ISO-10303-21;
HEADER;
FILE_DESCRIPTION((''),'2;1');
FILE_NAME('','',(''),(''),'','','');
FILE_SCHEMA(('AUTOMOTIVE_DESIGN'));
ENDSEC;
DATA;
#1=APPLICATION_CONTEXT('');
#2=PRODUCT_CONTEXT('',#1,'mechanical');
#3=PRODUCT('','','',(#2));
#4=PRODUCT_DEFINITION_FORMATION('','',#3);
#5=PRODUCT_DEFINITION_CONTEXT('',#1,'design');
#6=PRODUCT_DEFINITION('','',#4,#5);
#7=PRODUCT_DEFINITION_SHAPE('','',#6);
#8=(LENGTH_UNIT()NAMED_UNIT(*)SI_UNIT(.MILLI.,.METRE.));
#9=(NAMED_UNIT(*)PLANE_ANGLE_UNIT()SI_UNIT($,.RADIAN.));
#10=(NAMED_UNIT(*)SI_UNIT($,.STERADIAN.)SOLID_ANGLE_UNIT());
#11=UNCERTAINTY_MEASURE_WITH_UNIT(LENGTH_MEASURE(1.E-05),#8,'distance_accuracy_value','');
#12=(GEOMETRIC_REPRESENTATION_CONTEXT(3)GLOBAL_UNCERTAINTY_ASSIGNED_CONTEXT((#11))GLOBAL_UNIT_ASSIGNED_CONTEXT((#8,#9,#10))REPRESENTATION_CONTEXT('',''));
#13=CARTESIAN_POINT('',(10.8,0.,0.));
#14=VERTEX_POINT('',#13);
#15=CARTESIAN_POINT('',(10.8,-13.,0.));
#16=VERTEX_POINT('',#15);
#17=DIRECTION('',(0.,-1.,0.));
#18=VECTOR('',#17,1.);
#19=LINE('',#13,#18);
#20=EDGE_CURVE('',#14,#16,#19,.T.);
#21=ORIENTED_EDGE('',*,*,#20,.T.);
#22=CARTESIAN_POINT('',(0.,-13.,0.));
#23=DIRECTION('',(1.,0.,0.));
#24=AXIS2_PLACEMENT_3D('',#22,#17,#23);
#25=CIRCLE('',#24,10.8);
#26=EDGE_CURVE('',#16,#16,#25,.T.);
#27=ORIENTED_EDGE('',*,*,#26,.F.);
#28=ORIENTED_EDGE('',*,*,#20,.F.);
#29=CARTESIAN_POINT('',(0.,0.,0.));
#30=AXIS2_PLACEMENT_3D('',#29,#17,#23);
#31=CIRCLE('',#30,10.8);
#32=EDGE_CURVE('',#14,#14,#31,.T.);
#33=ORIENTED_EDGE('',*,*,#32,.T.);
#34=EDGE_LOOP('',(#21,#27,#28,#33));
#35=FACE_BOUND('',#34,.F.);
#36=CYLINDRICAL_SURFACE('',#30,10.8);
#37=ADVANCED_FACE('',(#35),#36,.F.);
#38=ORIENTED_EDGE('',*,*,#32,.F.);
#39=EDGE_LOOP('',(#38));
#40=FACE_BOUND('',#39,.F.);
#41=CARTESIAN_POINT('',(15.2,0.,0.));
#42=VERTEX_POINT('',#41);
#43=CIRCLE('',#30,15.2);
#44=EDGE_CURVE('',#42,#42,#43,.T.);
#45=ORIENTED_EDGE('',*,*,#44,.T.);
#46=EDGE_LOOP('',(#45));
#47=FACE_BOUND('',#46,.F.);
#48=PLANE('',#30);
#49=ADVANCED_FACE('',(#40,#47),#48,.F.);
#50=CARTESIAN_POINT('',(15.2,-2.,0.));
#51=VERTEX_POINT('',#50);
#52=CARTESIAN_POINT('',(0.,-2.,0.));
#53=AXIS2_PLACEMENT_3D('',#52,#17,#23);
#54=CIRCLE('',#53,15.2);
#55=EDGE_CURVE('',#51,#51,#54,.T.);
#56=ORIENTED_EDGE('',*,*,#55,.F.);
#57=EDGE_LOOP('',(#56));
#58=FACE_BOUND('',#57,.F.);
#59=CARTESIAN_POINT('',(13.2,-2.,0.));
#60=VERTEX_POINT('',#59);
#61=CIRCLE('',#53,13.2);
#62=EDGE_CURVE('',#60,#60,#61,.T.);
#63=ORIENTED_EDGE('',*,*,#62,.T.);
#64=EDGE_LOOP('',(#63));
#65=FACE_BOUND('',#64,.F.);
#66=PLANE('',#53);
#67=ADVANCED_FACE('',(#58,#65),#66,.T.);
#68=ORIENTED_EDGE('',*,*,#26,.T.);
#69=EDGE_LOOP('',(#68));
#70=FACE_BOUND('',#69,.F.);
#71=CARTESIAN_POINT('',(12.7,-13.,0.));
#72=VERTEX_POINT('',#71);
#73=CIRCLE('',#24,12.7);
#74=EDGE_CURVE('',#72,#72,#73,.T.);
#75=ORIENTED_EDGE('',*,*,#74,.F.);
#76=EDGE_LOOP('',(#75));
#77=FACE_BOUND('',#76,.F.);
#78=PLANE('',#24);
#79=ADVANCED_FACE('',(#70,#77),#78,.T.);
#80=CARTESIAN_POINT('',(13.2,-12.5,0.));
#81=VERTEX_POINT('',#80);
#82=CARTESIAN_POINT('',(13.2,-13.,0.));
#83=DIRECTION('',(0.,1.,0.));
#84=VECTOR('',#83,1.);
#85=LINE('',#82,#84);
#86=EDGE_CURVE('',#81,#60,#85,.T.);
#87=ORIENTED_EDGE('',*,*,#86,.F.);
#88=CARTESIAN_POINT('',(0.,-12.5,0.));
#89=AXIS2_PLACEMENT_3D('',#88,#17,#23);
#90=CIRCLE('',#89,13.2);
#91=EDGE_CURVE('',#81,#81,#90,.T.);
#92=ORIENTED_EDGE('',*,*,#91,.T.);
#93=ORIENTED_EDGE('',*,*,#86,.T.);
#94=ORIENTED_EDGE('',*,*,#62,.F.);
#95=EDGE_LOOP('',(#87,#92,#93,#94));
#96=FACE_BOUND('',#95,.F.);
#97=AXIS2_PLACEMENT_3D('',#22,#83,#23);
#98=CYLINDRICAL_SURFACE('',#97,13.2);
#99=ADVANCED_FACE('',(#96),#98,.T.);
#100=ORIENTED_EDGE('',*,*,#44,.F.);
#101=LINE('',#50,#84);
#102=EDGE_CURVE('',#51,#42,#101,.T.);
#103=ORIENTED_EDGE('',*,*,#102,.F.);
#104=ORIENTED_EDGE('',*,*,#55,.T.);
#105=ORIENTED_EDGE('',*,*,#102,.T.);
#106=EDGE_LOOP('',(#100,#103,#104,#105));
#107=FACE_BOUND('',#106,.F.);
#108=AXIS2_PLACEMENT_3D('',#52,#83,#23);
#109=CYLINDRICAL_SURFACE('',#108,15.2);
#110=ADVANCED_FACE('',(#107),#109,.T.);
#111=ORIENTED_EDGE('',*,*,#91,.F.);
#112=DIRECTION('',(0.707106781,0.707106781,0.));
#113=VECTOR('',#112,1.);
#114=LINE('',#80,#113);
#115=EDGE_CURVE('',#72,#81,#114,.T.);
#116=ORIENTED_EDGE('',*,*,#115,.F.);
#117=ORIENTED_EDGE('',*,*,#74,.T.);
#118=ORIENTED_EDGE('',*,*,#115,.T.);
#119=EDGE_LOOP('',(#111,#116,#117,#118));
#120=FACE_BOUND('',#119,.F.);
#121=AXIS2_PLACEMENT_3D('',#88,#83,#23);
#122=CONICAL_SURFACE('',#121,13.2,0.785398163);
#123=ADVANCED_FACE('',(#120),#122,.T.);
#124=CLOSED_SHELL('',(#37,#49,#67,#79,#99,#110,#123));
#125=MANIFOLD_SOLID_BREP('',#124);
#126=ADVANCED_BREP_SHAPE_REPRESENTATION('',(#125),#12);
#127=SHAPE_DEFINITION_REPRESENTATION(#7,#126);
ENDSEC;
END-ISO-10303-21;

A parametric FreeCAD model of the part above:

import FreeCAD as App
import Part
import Sketcher
from FreeCAD import Vector
Q = App.Units.Quantity


def edges_at(feature, points):
    """Names of the edges that pass closest to the given points."""
    edges = feature.Shape.Edges
    near = lambda p: min(range(len(edges)), key=lambda i: edges[i].distToShape(Part.Vertex(*p))[0])
    return sorted({f"Edge{near(p) + 1}" for p in points})

doc = App.newDocument("Part")
body = doc.addObject("PartDesign::Body", "Body")

sketch1 = body.newObject("Sketcher::SketchObject", "Sketch")
sketch1.AttachmentSupport = (doc.getObject("XY_Plane"), [""])
sketch1.MapMode = "FlatFace"
sketch1.addGeometry(Part.LineSegment(Vector(15.2, 0, 0), Vector(10.8, 0, 0)), False)
sketch1.addGeometry(Part.LineSegment(Vector(10.8, 0, 0), Vector(10.8, -13, 0)), False)
sketch1.addGeometry(Part.LineSegment(Vector(10.8, -13, 0), Vector(13.2, -13, 0)), False)
sketch1.addGeometry(Part.LineSegment(Vector(13.2, -13, 0), Vector(13.2, -2, 0)), False)
sketch1.addGeometry(Part.LineSegment(Vector(13.2, -2, 0), Vector(15.2, -2, 0)), False)
sketch1.addGeometry(Part.LineSegment(Vector(15.2, -2, 0), Vector(15.2, 0, 0)), False)
sketch1.addConstraint(Sketcher.Constraint("Coincident", 0, 2, 1, 1))
sketch1.addConstraint(Sketcher.Constraint("Coincident", 1, 2, 2, 1))
sketch1.addConstraint(Sketcher.Constraint("Coincident", 2, 2, 3, 1))
sketch1.addConstraint(Sketcher.Constraint("Coincident", 3, 2, 4, 1))
sketch1.addConstraint(Sketcher.Constraint("Coincident", 4, 2, 5, 1))
sketch1.addConstraint(Sketcher.Constraint("Coincident", 5, 2, 0, 1))
sketch1.addConstraint(Sketcher.Constraint("Horizontal", 0))
sketch1.addConstraint(Sketcher.Constraint("Vertical", 1))
sketch1.addConstraint(Sketcher.Constraint("Horizontal", 2))
sketch1.addConstraint(Sketcher.Constraint("Vertical", 3))
sketch1.addConstraint(Sketcher.Constraint("Horizontal", 4))
sketch1.addConstraint(Sketcher.Constraint("Vertical", 5))
sketch1.addConstraint(Sketcher.Constraint("PointOnObject", 0, 2, -1))
sketch1.addConstraint(Sketcher.Constraint("Equal", 4, 5))
sketch1.addConstraint(Sketcher.Constraint("DistanceX", 4, 1, 4, 2, Q("2 mm")))
sketch1.addConstraint(Sketcher.Constraint("DistanceY", 1, 2, 1, 1, Q("13 mm")))
sketch1.addConstraint(Sketcher.Constraint("DistanceX", 0, 2, 0, 1, Q("4.4 mm")))
sketch1.addConstraint(Sketcher.Constraint("DistanceX", -1, 1, 0, 2, Q("10.8 mm")))
revolution = body.newObject("PartDesign::Revolution", "Revolution")
revolution.Profile = sketch1
revolution.ReferenceAxis = (sketch1, ["V_Axis"])
revolution.Angle = 360
doc.recompute()

chamfer = body.newObject("PartDesign::Chamfer", "Chamfer")
chamfer.Base = (revolution, edges_at(revolution, [(-13.2, -13, 0)]))
chamfer.Size = 0.5

doc.recompute()
